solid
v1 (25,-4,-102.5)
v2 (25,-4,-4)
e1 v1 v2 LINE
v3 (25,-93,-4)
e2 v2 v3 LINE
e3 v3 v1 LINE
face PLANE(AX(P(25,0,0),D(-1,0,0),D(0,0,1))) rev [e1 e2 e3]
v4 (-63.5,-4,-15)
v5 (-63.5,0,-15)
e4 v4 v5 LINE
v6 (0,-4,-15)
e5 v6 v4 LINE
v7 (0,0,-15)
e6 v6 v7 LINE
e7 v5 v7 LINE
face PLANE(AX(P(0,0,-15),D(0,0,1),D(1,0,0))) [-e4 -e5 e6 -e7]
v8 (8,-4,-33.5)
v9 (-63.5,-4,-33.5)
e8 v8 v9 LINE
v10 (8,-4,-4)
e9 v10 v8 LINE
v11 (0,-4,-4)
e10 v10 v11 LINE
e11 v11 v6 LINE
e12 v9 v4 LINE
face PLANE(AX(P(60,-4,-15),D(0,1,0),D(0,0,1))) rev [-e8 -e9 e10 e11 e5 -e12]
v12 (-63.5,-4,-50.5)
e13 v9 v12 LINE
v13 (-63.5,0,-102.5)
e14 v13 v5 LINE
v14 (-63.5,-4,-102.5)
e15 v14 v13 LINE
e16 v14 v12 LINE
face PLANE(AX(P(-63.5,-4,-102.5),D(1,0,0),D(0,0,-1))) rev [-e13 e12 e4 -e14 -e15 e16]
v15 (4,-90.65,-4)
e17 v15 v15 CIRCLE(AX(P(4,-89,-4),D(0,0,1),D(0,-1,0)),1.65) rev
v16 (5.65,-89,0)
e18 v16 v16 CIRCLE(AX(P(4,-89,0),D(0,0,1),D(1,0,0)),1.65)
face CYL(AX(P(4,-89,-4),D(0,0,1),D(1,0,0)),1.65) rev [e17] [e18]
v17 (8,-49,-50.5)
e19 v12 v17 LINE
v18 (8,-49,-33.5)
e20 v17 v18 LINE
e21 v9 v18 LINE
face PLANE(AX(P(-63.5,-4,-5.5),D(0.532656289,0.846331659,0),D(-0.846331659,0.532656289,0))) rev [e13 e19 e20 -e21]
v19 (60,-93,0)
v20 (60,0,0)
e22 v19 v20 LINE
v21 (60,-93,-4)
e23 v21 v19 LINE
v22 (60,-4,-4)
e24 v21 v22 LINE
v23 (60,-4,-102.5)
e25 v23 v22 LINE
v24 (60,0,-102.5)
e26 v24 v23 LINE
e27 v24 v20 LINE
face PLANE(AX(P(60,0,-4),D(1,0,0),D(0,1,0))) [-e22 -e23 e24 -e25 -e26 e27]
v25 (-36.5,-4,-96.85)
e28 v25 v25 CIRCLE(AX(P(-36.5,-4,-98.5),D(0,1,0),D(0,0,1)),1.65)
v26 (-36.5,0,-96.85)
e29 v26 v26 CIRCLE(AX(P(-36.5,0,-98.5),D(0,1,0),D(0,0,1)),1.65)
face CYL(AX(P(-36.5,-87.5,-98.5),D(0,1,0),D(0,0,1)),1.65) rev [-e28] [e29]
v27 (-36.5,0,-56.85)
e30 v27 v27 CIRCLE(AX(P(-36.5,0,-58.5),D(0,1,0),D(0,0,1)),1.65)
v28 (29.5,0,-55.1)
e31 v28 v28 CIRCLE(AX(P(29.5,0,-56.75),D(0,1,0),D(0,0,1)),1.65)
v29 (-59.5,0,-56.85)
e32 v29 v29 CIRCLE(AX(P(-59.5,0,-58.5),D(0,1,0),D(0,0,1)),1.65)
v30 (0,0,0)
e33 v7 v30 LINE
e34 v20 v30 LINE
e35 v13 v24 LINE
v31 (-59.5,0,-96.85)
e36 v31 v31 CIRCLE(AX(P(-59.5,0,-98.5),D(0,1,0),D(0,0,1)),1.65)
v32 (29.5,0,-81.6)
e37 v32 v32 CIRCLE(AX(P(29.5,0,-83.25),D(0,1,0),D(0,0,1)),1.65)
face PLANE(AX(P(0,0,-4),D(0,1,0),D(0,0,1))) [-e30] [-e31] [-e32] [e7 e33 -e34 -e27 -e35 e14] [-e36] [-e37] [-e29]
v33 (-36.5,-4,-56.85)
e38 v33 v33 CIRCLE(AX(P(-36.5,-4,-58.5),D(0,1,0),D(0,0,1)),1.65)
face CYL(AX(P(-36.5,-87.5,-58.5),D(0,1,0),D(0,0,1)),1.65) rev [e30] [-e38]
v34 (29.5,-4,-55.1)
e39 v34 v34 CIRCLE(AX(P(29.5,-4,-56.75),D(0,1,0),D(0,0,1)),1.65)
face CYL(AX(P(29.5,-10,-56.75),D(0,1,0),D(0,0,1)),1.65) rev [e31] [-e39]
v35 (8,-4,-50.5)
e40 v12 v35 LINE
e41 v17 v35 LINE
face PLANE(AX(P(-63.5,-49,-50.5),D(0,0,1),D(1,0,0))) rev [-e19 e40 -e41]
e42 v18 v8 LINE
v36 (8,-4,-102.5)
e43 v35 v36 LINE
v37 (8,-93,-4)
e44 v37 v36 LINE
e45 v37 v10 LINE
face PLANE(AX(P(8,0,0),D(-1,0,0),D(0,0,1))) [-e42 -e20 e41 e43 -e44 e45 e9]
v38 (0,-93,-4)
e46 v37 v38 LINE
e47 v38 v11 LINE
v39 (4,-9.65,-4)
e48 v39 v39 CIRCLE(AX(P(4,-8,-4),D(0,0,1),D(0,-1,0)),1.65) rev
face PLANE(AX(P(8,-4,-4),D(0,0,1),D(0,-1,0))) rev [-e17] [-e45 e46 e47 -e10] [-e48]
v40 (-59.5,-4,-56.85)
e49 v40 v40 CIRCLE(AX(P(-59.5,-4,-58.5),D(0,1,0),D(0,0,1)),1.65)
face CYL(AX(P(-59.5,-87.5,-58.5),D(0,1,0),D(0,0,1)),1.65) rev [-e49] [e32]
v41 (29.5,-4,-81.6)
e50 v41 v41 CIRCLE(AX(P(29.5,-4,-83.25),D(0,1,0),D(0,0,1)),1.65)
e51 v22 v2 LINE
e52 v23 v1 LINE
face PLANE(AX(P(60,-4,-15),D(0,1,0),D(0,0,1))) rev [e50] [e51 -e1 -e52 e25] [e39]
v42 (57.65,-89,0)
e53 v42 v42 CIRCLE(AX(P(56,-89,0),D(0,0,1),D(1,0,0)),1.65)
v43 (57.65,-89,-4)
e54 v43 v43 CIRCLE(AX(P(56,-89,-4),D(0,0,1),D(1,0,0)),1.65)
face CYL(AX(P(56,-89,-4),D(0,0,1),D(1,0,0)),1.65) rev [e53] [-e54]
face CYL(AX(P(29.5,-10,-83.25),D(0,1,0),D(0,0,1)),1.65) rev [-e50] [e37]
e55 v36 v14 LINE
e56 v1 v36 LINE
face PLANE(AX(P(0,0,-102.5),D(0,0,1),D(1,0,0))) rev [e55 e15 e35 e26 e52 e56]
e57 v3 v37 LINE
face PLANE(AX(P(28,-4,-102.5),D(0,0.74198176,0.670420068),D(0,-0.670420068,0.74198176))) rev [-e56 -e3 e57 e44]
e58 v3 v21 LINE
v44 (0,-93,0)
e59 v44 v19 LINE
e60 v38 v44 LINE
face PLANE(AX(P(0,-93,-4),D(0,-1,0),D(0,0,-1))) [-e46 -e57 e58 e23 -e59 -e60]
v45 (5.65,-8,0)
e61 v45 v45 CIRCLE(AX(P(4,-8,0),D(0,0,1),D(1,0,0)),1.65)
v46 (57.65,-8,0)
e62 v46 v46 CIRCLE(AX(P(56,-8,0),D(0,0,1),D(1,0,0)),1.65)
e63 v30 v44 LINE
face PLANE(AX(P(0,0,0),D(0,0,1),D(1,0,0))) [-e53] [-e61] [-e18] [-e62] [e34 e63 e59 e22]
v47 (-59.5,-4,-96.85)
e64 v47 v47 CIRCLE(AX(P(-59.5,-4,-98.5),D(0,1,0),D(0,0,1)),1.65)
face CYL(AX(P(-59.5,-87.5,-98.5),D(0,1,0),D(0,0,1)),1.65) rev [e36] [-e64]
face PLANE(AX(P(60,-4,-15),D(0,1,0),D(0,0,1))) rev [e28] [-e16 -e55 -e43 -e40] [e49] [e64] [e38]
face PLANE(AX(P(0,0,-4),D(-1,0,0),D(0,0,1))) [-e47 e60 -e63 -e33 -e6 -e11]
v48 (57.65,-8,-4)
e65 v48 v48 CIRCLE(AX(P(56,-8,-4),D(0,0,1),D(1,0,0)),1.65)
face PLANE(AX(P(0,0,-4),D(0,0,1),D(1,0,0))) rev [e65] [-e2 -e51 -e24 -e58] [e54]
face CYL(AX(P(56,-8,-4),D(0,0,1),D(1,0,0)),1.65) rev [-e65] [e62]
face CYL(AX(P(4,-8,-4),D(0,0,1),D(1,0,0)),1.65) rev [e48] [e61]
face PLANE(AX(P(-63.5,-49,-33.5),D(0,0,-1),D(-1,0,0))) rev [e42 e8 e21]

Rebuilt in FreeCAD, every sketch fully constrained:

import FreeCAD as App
import Part
import Sketcher

V = App.Vector

doc = App.newDocument("Part")
body = doc.addObject("PartDesign::Body", "Body")

# Sketch on XY plane
sketch1 = body.newObject("Sketcher::SketchObject", "Sketch")
sketch1.AttachmentSupport = (doc.getObject("XY_Plane"), [""])
sketch1.MapMode = "FlatFace"
sketch1.addGeometry(Part.LineSegment(V(0, 0, 0), V(0, -93, 0)), False)
sketch1.addGeometry(Part.LineSegment(V(0, -93, 0), V(60, -93, 0)), False)
sketch1.addGeometry(Part.LineSegment(V(60, -93, 0), V(60, 0, 0)), False)
sketch1.addGeometry(Part.LineSegment(V(60, 0, 0), V(0, 0, 0)), False)
sketch1.addConstraint(Sketcher.Constraint("Coincident", 0, 2, 1, 1))
sketch1.addConstraint(Sketcher.Constraint("Coincident", 1, 2, 2, 1))
sketch1.addConstraint(Sketcher.Constraint("Coincident", 2, 2, 3, 1))
sketch1.addConstraint(Sketcher.Constraint("Coincident", 3, 2, 0, 1))
sketch1.addConstraint(Sketcher.Constraint("Vertical", 0))
sketch1.addConstraint(Sketcher.Constraint("Horizontal", 1))
sketch1.addConstraint(Sketcher.Constraint("Vertical", 2))
sketch1.addConstraint(Sketcher.Constraint("Horizontal", 3))
sketch1.addConstraint(Sketcher.Constraint("Coincident", 3, 2, -1, 1))
sketch1.addConstraint(Sketcher.Constraint("DistanceX", 1, 1, 1, 2, 60.0))
sketch1.addConstraint(Sketcher.Constraint("DistanceY", 0, 2, 0, 1, 93.0))
pad1 = body.newObject("PartDesign::Pad", "Pad")
pad1.Profile = sketch1
pad1.Length = 4
pad1.Reversed = True

# Sketch on XY plane
sketch2 = body.newObject("Sketcher::SketchObject", "Sketch001")
sketch2.AttachmentSupport = (doc.getObject("XY_Plane"), [""])
sketch2.MapMode = "FlatFace"
sketch2.addGeometry(Part.Circle(V(4, -8, 0), V(0, 0, 1), 1.6), False)
sketch2.addGeometry(Part.Circle(V(56, -8, 0), V(0, 0, 1), 1.6), False)
sketch2.addGeometry(Part.Circle(V(4, -89, 0), V(0, 0, 1), 1.6), False)
sketch2.addGeometry(Part.Circle(V(56, -89, 0), V(0, 0, 1), 1.6), False)
sketch2.addConstraint(Sketcher.Constraint("Equal", 0, 1))
sketch2.addConstraint(Sketcher.Constraint("Equal", 1, 2))
sketch2.addConstraint(Sketcher.Constraint("Equal", 2, 3))
sketch2.addConstraint(Sketcher.Constraint("Horizontal", 0, 3, 1, 3))
sketch2.addConstraint(Sketcher.Constraint("Horizontal", 2, 3, 3, 3))
sketch2.addConstraint(Sketcher.Constraint("Vertical", 0, 3, 2, 3))
sketch2.addConstraint(Sketcher.Constraint("Vertical", 1, 3, 3, 3))
sketch2.addConstraint(Sketcher.Constraint("Diameter", 0, 3.3))
sketch2.addConstraint(Sketcher.Constraint("DistanceX", -1, 1, 0, 3, 4.0))
sketch2.addConstraint(Sketcher.Constraint("DistanceY", 0, 3, -1, 1, 8.0))
sketch2.addConstraint(Sketcher.Constraint("DistanceX", -1, 1, 1, 3, 56.0))
sketch2.addConstraint(Sketcher.Constraint("DistanceY", 2, 3, -1, 1, 89.0))
pocket1 = body.newObject("PartDesign::Pocket", "Pocket")
pocket1.Profile = sketch2
pocket1.Length = 4

# Sketch on XY plane
sketch3 = body.newObject("Sketcher::SketchObject", "Sketch002")
sketch3.AttachmentSupport = (doc.getObject("XY_Plane"), [""])
sketch3.MapMode = "FlatFace"
sketch3.AttachmentOffset = App.Placement(V(0, 0, -4), App.Rotation())
sketch3.addGeometry(Part.LineSegment(V(60, 0, 0), V(60, -4, 0)), False)
sketch3.addGeometry(Part.LineSegment(V(60, -4, 0), V(0, -4, 0)), False)
sketch3.addGeometry(Part.LineSegment(V(0, -4, 0), V(0, 0, 0)), False)
sketch3.addGeometry(Part.LineSegment(V(0, 0, 0), V(60, 0, 0)), False)
sketch3.addConstraint(Sketcher.Constraint("Coincident", 0, 2, 1, 1))
sketch3.addConstraint(Sketcher.Constraint("Coincident", 1, 2, 2, 1))
sketch3.addConstraint(Sketcher.Constraint("Coincident", 2, 2, 3, 1))
sketch3.addConstraint(Sketcher.Constraint("Coincident", 3, 2, 0, 1))
sketch3.addConstraint(Sketcher.Constraint("Vertical", 0))
sketch3.addConstraint(Sketcher.Constraint("Horizontal", 1))
sketch3.addConstraint(Sketcher.Constraint("Vertical", 2))
sketch3.addConstraint(Sketcher.Constraint("Horizontal", 3))
sketch3.addConstraint(Sketcher.Constraint("Coincident", 2, 2, -1, 1))
sketch3.addConstraint(Sketcher.Constraint("DistanceX", 1, 2, 1, 1, 60.0))
sketch3.addConstraint(Sketcher.Constraint("DistanceY", 0, 2, 0, 1, 4.0))
pad2 = body.newObject("PartDesign::Pad", "Pad001")
pad2.Profile = sketch3
pad2.Length = 11
pad2.Reversed = True

# Sketch on XY plane
sketch4 = body.newObject("Sketcher::SketchObject", "Sketch003")
sketch4.AttachmentSupport = (doc.getObject("XY_Plane"), [""])
sketch4.MapMode = "FlatFace"
sketch4.AttachmentOffset = App.Placement(V(0, 0, -15), App.Rotation())
sketch4.addGeometry(Part.LineSegment(V(60, 0, 0), V(60, -4, 0)), False)
sketch4.addGeometry(Part.LineSegment(V(60, -4, 0), V(-63.5, -4, 0)), False)
sketch4.addGeometry(Part.LineSegment(V(-63.5, -4, 0), V(-63.5, 0, 0)), False)
sketch4.addGeometry(Part.LineSegment(V(-63.5, 0, 0), V(60, 0, 0)), False)
sketch4.addConstraint(Sketcher.Constraint("Coincident", 0, 2, 1, 1))
sketch4.addConstraint(Sketcher.Constraint("Coincident", 1, 2, 2, 1))
sketch4.addConstraint(Sketcher.Constraint("Coincident", 2, 2, 3, 1))
sketch4.addConstraint(Sketcher.Constraint("Coincident", 3, 2, 0, 1))
sketch4.addConstraint(Sketcher.Constraint("Vertical", 0))
sketch4.addConstraint(Sketcher.Constraint("Horizontal", 1))
sketch4.addConstraint(Sketcher.Constraint("Vertical", 2))
sketch4.addConstraint(Sketcher.Constraint("Horizontal", 3))
sketch4.addConstraint(Sketcher.Constraint("PointOnObject", 2, 2, -1))
sketch4.addConstraint(Sketcher.Constraint("DistanceY", 0, 2, 0, 1, 4.0))
sketch4.addConstraint(Sketcher.Constraint("DistanceX", 1, 2, 1, 1, 123.5))
sketch4.addConstraint(Sketcher.Constraint("DistanceX", -1, 1, 0, 2, 60.0))
pad3 = body.newObject("PartDesign::Pad", "Pad002")
pad3.Profile = sketch4
pad3.Length = 87.5
pad3.Reversed = True

# Sketch on XZ plane
sketch5 = body.newObject("Sketcher::SketchObject", "Sketch004")
sketch5.AttachmentSupport = (doc.getObject("XZ_Plane"), [""])
sketch5.MapMode = "FlatFace"
sketch5.addGeometry(Part.Circle(V(-59.5, -98.5, 0), V(0, 0, 1), 1.6), False)
sketch5.addGeometry(Part.Circle(V(-36.5, -98.5, 0), V(0, 0, 1), 1.6), False)
sketch5.addGeometry(Part.Circle(V(-59.5, -58.5, 0), V(0, 0, 1), 1.6), False)
sketch5.addGeometry(Part.Circle(V(-36.5, -58.5, 0), V(0, 0, 1), 1.6), False)
sketch5.addConstraint(Sketcher.Constraint("Equal", 0, 1))
sketch5.addConstraint(Sketcher.Constraint("Equal", 1, 2))
sketch5.addConstraint(Sketcher.Constraint("Equal", 2, 3))
sketch5.addConstraint(Sketcher.Constraint("Horizontal", 0, 3, 1, 3))
sketch5.addConstraint(Sketcher.Constraint("Horizontal", 2, 3, 3, 3))
sketch5.addConstraint(Sketcher.Constraint("Vertical", 0, 3, 2, 3))
sketch5.addConstraint(Sketcher.Constraint("Vertical", 1, 3, 3, 3))
sketch5.addConstraint(Sketcher.Constraint("Diameter", 0, 3.3))
sketch5.addConstraint(Sketcher.Constraint("DistanceX", 0, 3, 1, 3, 23.0))
sketch5.addConstraint(Sketcher.Constraint("DistanceY", 0, 3, 2, 3, 40.0))
sketch5.addConstraint(Sketcher.Constraint("DistanceX", 0, 3, -1, 1, 59.5))
sketch5.addConstraint(Sketcher.Constraint("DistanceY", 0, 3, -1, 1, 98.5))
pocket2 = body.newObject("PartDesign::Pocket", "Pocket001")
pocket2.Profile = sketch5
pocket2.Length = 87.5
pocket2.Reversed = True

# Sketch on XZ plane
sketch6 = body.newObject("Sketcher::SketchObject", "Sketch005")
sketch6.AttachmentSupport = (doc.getObject("XZ_Plane"), [""])
sketch6.MapMode = "FlatFace"
sketch6.addGeometry(Part.Circle(V(29.5, -83.2, 0), V(0, 0, 1), 1.6), False)
sketch6.addGeometry(Part.Circle(V(29.5, -56.8, 0), V(0, 0, 1), 1.6), False)
sketch6.addConstraint(Sketcher.Constraint("Equal", 0, 1))
sketch6.addConstraint(Sketcher.Constraint("Vertical", 0, 3, 1, 3))
sketch6.addConstraint(Sketcher.Constraint("Diameter", 0, 3.3))
sketch6.addConstraint(Sketcher.Constraint("DistanceX", -1, 1, 0, 3, 29.5))
sketch6.addConstraint(Sketcher.Constraint("DistanceY", 0, 3, 1, 3, 26.5))
sketch6.addConstraint(Sketcher.Constraint("DistanceY", 0, 3, -1, 1, 83.25))
pocket3 = body.newObject("PartDesign::Pocket", "Pocket002")
pocket3.Profile = sketch6
pocket3.Length = 10
pocket3.Reversed = True

# Sketch on YZ plane
sketch7 = body.newObject("Sketcher::SketchObject", "Sketch006")
sketch7.AttachmentSupport = (doc.getObject("YZ_Plane"), [""])
sketch7.MapMode = "FlatFace"
sketch7.addGeometry(Part.LineSegment(V(-4, -4, 0), V(-93, -4, 0)), False)
sketch7.addGeometry(Part.LineSegment(V(-93, -4, 0), V(-93, -102, 0)), False)
sketch7.addGeometry(Part.LineSegment(V(-93, -102, 0), V(-4, -102, 0)), False)
sketch7.addGeometry(Part.LineSegment(V(-4, -102, 0), V(-4, -4, 0)), False)
sketch7.addConstraint(Sketcher.Constraint("Coincident", 0, 2, 1, 1))
sketch7.addConstraint(Sketcher.Constraint("Coincident", 1, 2, 2, 1))
sketch7.addConstraint(Sketcher.Constraint("Coincident", 2, 2, 3, 1))
sketch7.addConstraint(Sketcher.Constraint("Coincident", 3, 2, 0, 1))
sketch7.addConstraint(Sketcher.Constraint("Horizontal", 0))
sketch7.addConstraint(Sketcher.Constraint("Vertical", 1))
sketch7.addConstraint(Sketcher.Constraint("Horizontal", 2))
sketch7.addConstraint(Sketcher.Constraint("Vertical", 3))
sketch7.addConstraint(Sketcher.Constraint("DistanceX", 0, 2, 0, 1, 89.0))
sketch7.addConstraint(Sketcher.Constraint("DistanceY", 1, 2, 1, 1, 98.5))
sketch7.addConstraint(Sketcher.Constraint("DistanceX", 0, 2, -1, 1, 93.0))
sketch7.addConstraint(Sketcher.Constraint("DistanceY", 0, 2, -1, 1, 4.0))
pad4 = body.newObject("PartDesign::Pad", "Pad003")
pad4.Profile = sketch7
pad4.Length = 25

# Sketch on YZ plane
sketch8 = body.newObject("Sketcher::SketchObject", "Sketch007")
sketch8.AttachmentSupport = (doc.getObject("YZ_Plane"), [""])
sketch8.MapMode = "FlatFace"
sketch8.addGeometry(Part.LineSegment(V(-4, -102, 0), V(-93, -102, 0)), False)
sketch8.addGeometry(Part.LineSegment(V(-93, -102, 0), V(-93, -4, 0)), False)
sketch8.addGeometry(Part.LineSegment(V(-93, -4, 0), V(-4, -4, 0)), False)
sketch8.addGeometry(Part.LineSegment(V(-4, -4, 0), V(-4, -102, 0)), False)
sketch8.addConstraint(Sketcher.Constraint("Coincident", 0, 2, 1, 1))
sketch8.addConstraint(Sketcher.Constraint("Coincident", 1, 2, 2, 1))
sketch8.addConstraint(Sketcher.Constraint("Coincident", 2, 2, 3, 1))
sketch8.addConstraint(Sketcher.Constraint("Coincident", 3, 2, 0, 1))
sketch8.addConstraint(Sketcher.Constraint("Horizontal", 0))
sketch8.addConstraint(Sketcher.Constraint("Vertical", 1))
sketch8.addConstraint(Sketcher.Constraint("Horizontal", 2))
sketch8.addConstraint(Sketcher.Constraint("Vertical", 3))
sketch8.addConstraint(Sketcher.Constraint("DistanceX", 0, 2, 0, 1, 89.0))
sketch8.addConstraint(Sketcher.Constraint("DistanceY", 1, 1, 1, 2, 98.5))
sketch8.addConstraint(Sketcher.Constraint("DistanceX", 0, 2, -1, 1, 93.0))
sketch8.addConstraint(Sketcher.Constraint("DistanceY", 1, 2, -1, 1, 4.0))
pocket4 = body.newObject("PartDesign::Pocket", "Pocket003")
pocket4.Profile = sketch8
pocket4.Length = 8
pocket4.Reversed = True

# Sketch on YZ plane
sketch9 = body.newObject("Sketcher::SketchObject", "Sketch008")
sketch9.AttachmentSupport = (doc.getObject("YZ_Plane"), [""])
sketch9.MapMode = "FlatFace"
sketch9.AttachmentOffset = App.Placement(V(0, 0, 8), App.Rotation())
sketch9.addGeometry(Part.LineSegment(V(-4, -102, 0), V(-93, -102, 0)), False)
sketch9.addGeometry(Part.LineSegment(V(-93, -102, 0), V(-93, -4, 0)), False)
sketch9.addGeometry(Part.LineSegment(V(-93, -4, 0), V(-4, -102, 0)), False)
sketch9.addConstraint(Sketcher.Constraint("Coincident", 0, 2, 1, 1))
sketch9.addConstraint(Sketcher.Constraint("Coincident", 1, 2, 2, 1))
sketch9.addConstraint(Sketcher.Constraint("Coincident", 2, 2, 0, 1))
sketch9.addConstraint(Sketcher.Constraint("Horizontal", 0))
sketch9.addConstraint(Sketcher.Constraint("Vertical", 1))
sketch9.addConstraint(Sketcher.Constraint("DistanceX", 0, 2, 0, 1, 89.0))
sketch9.addConstraint(Sketcher.Constraint("DistanceY", 1, 1, 1, 2, 98.5))
sketch9.addConstraint(Sketcher.Constraint("DistanceX", 0, 2, -1, 1, 93.0))
sketch9.addConstraint(Sketcher.Constraint("DistanceY", 1, 2, -1, 1, 4.0))
pocket5 = body.newObject("PartDesign::Pocket", "Pocket004")
pocket5.Profile = sketch9
pocket5.Length = 20
pocket5.Reversed = True

# Sketch on XZ plane
sketch10 = body.newObject("Sketcher::SketchObject", "Sketch009")
sketch10.AttachmentSupport = (doc.getObject("XZ_Plane"), [""])
sketch10.MapMode = "FlatFace"
sketch10.AttachmentOffset = App.Placement(V(0, 0, 4), App.Rotation())
sketch10.addGeometry(Part.LineSegment(V(-64, -34, 0), V(-64, -50, 0)), False)
sketch10.addGeometry(Part.LineSegment(V(-64, -50, 0), V(8, -50, 0)), False)
sketch10.addGeometry(Part.LineSegment(V(8, -50, 0), V(8, -34, 0)), False)
sketch10.addGeometry(Part.LineSegment(V(8, -34, 0), V(-64, -34, 0)), False)
sketch10.addConstraint(Sketcher.Constraint("Coincident", 0, 2, 1, 1))
sketch10.addConstraint(Sketcher.Constraint("Coincident", 1, 2, 2, 1))
sketch10.addConstraint(Sketcher.Constraint("Coincident", 2, 2, 3, 1))
sketch10.addConstraint(Sketcher.Constraint("Coincident", 3, 2, 0, 1))
sketch10.addConstraint(Sketcher.Constraint("Vertical", 0))
sketch10.addConstraint(Sketcher.Constraint("Horizontal", 1))
sketch10.addConstraint(Sketcher.Constraint("Vertical", 2))
sketch10.addConstraint(Sketcher.Constraint("Horizontal", 3))
sketch10.addConstraint(Sketcher.Constraint("DistanceY", 0, 2, 0, 1, 17.0))
sketch10.addConstraint(Sketcher.Constraint("DistanceX", 1, 1, 1, 2, 71.5))
sketch10.addConstraint(Sketcher.Constraint("DistanceX", -1, 1, 1, 2, 8.0))
sketch10.addConstraint(Sketcher.Constraint("DistanceY", 0, 2, -1, 1, 50.5))
pad5 = body.newObject("PartDesign::Pad", "Pad004")
pad5.Profile = sketch10
pad5.Length = 45

# Sketch on XY plane
sketch11 = body.newObject("Sketcher::SketchObject", "Sketch010")
sketch11.AttachmentSupport = (doc.getObject("XY_Plane"), [""])
sketch11.MapMode = "FlatFace"
sketch11.AttachmentOffset = App.Placement(V(0, 0, -50.5), App.Rotation())
sketch11.addGeometry(Part.LineSegment(V(-64, -4, 0), V(8, -49, 0)), False)
sketch11.addGeometry(Part.LineSegment(V(8, -49, 0), V(-64, -49, 0)), False)
sketch11.addGeometry(Part.LineSegment(V(-64, -49, 0), V(-64, -4, 0)), False)
sketch11.addConstraint(Sketcher.Constraint("Coincident", 0, 2, 1, 1))
sketch11.addConstraint(Sketcher.Constraint("Coincident", 1, 2, 2, 1))
sketch11.addConstraint(Sketcher.Constraint("Coincident", 2, 2, 0, 1))
sketch11.addConstraint(Sketcher.Constraint("Horizontal", 1))
sketch11.addConstraint(Sketcher.Constraint("Vertical", 2))
sketch11.addConstraint(Sketcher.Constraint("DistanceY", 2, 1, 2, 2, 45.0))
sketch11.addConstraint(Sketcher.Constraint("DistanceX", 1, 2, 1, 1, 71.5))
sketch11.addConstraint(Sketcher.Constraint("DistanceX", -1, 1, 0, 2, 8.0))
sketch11.addConstraint(Sketcher.Constraint("DistanceY", 0, 2, -1, 1, 49.0))
pocket6 = body.newObject("PartDesign::Pocket", "Pocket005")
pocket6.Profile = sketch11
pocket6.Length = 45
pocket6.Reversed = True

doc.recompute()
